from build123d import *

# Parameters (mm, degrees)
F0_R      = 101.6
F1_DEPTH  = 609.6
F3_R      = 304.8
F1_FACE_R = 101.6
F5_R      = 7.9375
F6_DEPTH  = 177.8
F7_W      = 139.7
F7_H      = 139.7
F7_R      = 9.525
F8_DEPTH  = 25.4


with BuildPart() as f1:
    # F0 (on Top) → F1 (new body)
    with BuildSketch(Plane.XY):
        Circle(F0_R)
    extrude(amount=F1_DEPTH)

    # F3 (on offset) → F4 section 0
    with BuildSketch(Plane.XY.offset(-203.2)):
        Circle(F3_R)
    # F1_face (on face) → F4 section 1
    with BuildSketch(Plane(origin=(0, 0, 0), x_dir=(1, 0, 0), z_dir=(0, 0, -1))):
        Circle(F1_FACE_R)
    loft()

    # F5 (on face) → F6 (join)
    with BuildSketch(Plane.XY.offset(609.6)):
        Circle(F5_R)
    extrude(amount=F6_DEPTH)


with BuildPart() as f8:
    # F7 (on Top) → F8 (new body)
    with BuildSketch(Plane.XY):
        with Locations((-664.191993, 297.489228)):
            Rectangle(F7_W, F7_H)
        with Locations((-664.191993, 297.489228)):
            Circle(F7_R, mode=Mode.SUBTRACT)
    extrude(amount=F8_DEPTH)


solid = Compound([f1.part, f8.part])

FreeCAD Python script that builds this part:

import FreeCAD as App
import Part
import Sketcher
Q = App.Units.Quantity


def add_polygon(sketch, points):
    """Adds a closed chain of lines whose ends are joined by coincident constraints."""
    first, n = sketch.GeometryCount, len(points)
    for a, b in zip(points, points[1:] + points[:1]):
        sketch.addGeometry(Part.LineSegment(App.Vector(*a, 0), App.Vector(*b, 0)), False)
    for i in range(n):
        sketch.addConstraint(Sketcher.Constraint("Coincident", first + i, 2, first + (i + 1) % n, 1))

doc = App.newDocument("Part")
body = doc.addObject("PartDesign::Body", "Body")

sketch1 = body.newObject("Sketcher::SketchObject", "Sketch")
sketch1.AttachmentSupport = (doc.getObject("XY_Plane"), [""])
sketch1.MapMode = "FlatFace"
sketch1.addGeometry(Part.Circle(App.Vector(0, 0, 0), App.Vector(0, 0, 1), 102), False)
sketch1.addConstraint(Sketcher.Constraint("Coincident", 0, 3, -1, 1))
sketch1.addConstraint(Sketcher.Constraint("Diameter", 0, Q("8 in")))
pad1 = body.newObject("PartDesign::Pad", "Pad")
pad1.Profile = sketch1
pad1.Length = Q("24 in")

sketch2 = body.newObject("Sketcher::SketchObject", "Sketch001")
sketch2.AttachmentSupport = (doc.getObject("XY_Plane"), [""])
sketch2.MapMode = "FlatFace"
sketch2.AttachmentOffset = App.Placement(App.Vector(0, 0, -8 * 25.4), App.Rotation())
sketch2.addGeometry(Part.Circle(App.Vector(0, 0, 0), App.Vector(0, 0, 1), 305), False)
sketch2.addConstraint(Sketcher.Constraint("Coincident", 0, 3, -1, 1))
sketch2.addConstraint(Sketcher.Constraint("Diameter", 0, Q("24 in")))

sketch3 = body.newObject("Sketcher::SketchObject", "Sketch002")
sketch3.AttachmentSupport = (doc.getObject("XY_Plane"), [""])
sketch3.MapMode = "FlatFace"
sketch3.addGeometry(Part.Circle(App.Vector(0, 0, 0), App.Vector(0, 0, 1), 102), False)
sketch3.addConstraint(Sketcher.Constraint("Coincident", 0, 3, -1, 1))
sketch3.addConstraint(Sketcher.Constraint("Diameter", 0, Q("8 in")))

additiveloft = body.newObject("PartDesign::AdditiveLoft", "AdditiveLoft")
additiveloft.Profile = sketch2
additiveloft.Sections = [sketch3]

sketch4 = body.newObject("Sketcher::SketchObject", "Sketch003")
sketch4.AttachmentSupport = (doc.getObject("XY_Plane"), [""])
sketch4.MapMode = "FlatFace"
sketch4.AttachmentOffset = App.Placement(App.Vector(0, 0, 24 * 25.4), App.Rotation())
sketch4.addGeometry(Part.Circle(App.Vector(0, 0, 0), App.Vector(0, 0, 1), 8), False)
sketch4.addConstraint(Sketcher.Constraint("Coincident", 0, 3, -1, 1))
sketch4.addConstraint(Sketcher.Constraint("Diameter", 0, Q("0.625 in")))
pad2 = body.newObject("PartDesign::Pad", "Pad001")
pad2.Profile = sketch4
pad2.Length = Q("7 in")
body2 = doc.addObject("PartDesign::Body", "Body001")

sketch5 = body2.newObject("Sketcher::SketchObject", "Sketch004")
sketch5.AttachmentSupport = (doc.getObject("XY_Plane001"), [""])
sketch5.MapMode = "FlatFace"
add_polygon(sketch5, [(-734, 367), (-734, 228), (-594, 228), (-594, 367)])
sketch5.addGeometry(Part.Circle(App.Vector(-664, 297, 0), App.Vector(0, 0, 1), 10), False)
sketch5.addConstraint(Sketcher.Constraint("Vertical", 0))
sketch5.addConstraint(Sketcher.Constraint("Horizontal", 1))
sketch5.addConstraint(Sketcher.Constraint("Vertical", 2))
sketch5.addConstraint(Sketcher.Constraint("Horizontal", 3))
sketch5.addConstraint(Sketcher.Constraint("Equal", 3, 0))
sketch5.addConstraint(Sketcher.Constraint("Diameter", 4, Q("0.75 in")))
sketch5.addConstraint(Sketcher.Constraint("DistanceX", 1, 1, 1, 2, Q("5.5 in")))
sketch5.addConstraint(Sketcher.Constraint("DistanceX", 0, 2, 4, 3, Q("2.75 in")))
sketch5.addConstraint(Sketcher.Constraint("DistanceY", 0, 2, 4, 3, Q("2.75 in")))
sketch5.addConstraint(Sketcher.Constraint("DistanceY", -1, 1, 4, 3, 297.489228))
sketch5.addConstraint(Sketcher.Constraint("DistanceX", 4, 3, -1, 1, 664.191993))
pad3 = body2.newObject("PartDesign::Pad", "Pad002")
pad3.Profile = sketch5
pad3.Length = Q("1 in")

doc.recompute()
